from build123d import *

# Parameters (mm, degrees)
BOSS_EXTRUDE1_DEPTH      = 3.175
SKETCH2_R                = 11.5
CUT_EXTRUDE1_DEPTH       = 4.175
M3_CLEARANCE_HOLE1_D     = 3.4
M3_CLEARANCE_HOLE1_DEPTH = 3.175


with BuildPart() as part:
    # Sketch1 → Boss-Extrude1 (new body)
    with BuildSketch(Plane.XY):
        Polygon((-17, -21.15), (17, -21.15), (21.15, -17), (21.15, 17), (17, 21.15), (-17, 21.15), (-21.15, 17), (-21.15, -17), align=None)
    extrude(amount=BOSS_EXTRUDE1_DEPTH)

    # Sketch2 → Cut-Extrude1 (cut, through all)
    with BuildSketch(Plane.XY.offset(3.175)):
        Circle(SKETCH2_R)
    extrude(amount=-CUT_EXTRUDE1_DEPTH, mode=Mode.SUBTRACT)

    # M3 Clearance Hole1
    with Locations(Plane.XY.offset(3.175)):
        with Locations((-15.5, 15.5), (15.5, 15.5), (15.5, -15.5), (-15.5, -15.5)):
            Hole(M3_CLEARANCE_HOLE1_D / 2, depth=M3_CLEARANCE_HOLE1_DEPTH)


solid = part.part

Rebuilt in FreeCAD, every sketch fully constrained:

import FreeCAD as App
import Part
import Sketcher
Q = App.Units.Quantity

doc = App.newDocument("Part")
params = doc.addObject("Spreadsheet::Sheet", "Params")
for row, (alias, value) in enumerate([
    ("sketch1_width", "34 mm"),
    ("pad1_length", "3.175 mm"),
    ("sketch2_diameter", "23 mm"),
    ("sketch3_diameter", "3.4 mm"),
    ("hole_diameter", "3.4 mm"),
    ("hole_depth", "3.175 mm"),
], start=1):
    params.set(f"A{row}", alias)
    params.set(f"B{row}", "=" + value)
    params.setAlias(f"B{row}", alias)

body = doc.addObject("PartDesign::Body", "Body")

sketch1 = body.newObject("Sketcher::SketchObject", "Sketch")
sketch1.AttachmentSupport = (doc.getObject("XY_Plane"), [""])
sketch1.MapMode = "FlatFace"
sketch1.addGeometry([
    Part.LineSegment(App.Vector(-17, -21.15, 0), App.Vector(17, -21.15, 0)),
    Part.LineSegment(App.Vector(17, -21.15, 0), App.Vector(21.15, -17, 0)),
    Part.LineSegment(App.Vector(21.15, -17, 0), App.Vector(21.15, 17, 0)),
    Part.LineSegment(App.Vector(21.15, 17, 0), App.Vector(17, 21.15, 0)),
    Part.LineSegment(App.Vector(17, 21.15, 0), App.Vector(-17, 21.15, 0)),
    Part.LineSegment(App.Vector(-17, 21.15, 0), App.Vector(-21.15, 17, 0)),
    Part.LineSegment(App.Vector(-21.15, 17, 0), App.Vector(-21.15, -17, 0)),
    Part.LineSegment(App.Vector(-21.15, -17, 0), App.Vector(-17, -21.15, 0)),
], False)
sketch1.addConstraint([
    Sketcher.Constraint("Coincident", 0, 2, 1, 1),
    Sketcher.Constraint("Coincident", 1, 2, 2, 1),
    Sketcher.Constraint("Coincident", 2, 2, 3, 1),
    Sketcher.Constraint("Coincident", 3, 2, 4, 1),
    Sketcher.Constraint("Coincident", 4, 2, 5, 1),
    Sketcher.Constraint("Coincident", 5, 2, 6, 1),
    Sketcher.Constraint("Coincident", 6, 2, 7, 1),
    Sketcher.Constraint("Coincident", 7, 2, 0, 1),
    Sketcher.Constraint("Horizontal", 0),
    Sketcher.Constraint("Vertical", 2),
    Sketcher.Constraint("Horizontal", 4),
    Sketcher.Constraint("Vertical", 6),
    Sketcher.Constraint("Symmetric", 0, 2, 4, 2, -1, 1),
    Sketcher.Constraint("Symmetric", 1, 2, 5, 2, -1, 1),
    Sketcher.Constraint("Perpendicular", 1, 3),
    Sketcher.Constraint("Perpendicular", 5, 7),
    Sketcher.Constraint("Horizontal", 2, 2, 5, 2),
    Sketcher.Constraint("Horizontal", 1, 2, 6, 2),
    Sketcher.Constraint("Vertical", 0, 2, 3, 2),
    Sketcher.Constraint("Equal", 4, 2),
    Sketcher.Constraint("DistanceX", 0, 1, 0, 2, Q("34 mm")),
    Sketcher.Constraint("DistanceY", 0, 2, 3, 2, Q("42.3 mm")),
])
sketch1.setExpression("Constraints[20]", "Params.sketch1_width")
pad1 = body.newObject("PartDesign::Pad", "Pad")
pad1.Profile = sketch1
pad1.setExpression("Length", "Params.pad1_length")

sketch2 = body.newObject("Sketcher::SketchObject", "Sketch001")
sketch2.AttachmentSupport = (doc.getObject("XY_Plane"), [""])
sketch2.MapMode = "FlatFace"
sketch2.AttachmentOffset = App.Placement(App.Vector(0, 0, 3.175), App.Rotation())
sketch2.addGeometry(Part.Circle(App.Vector(0, 0, 0), App.Vector(0, 0, 1), 11.5), False)
sketch2.addConstraint([
    Sketcher.Constraint("Coincident", 0, 3, -1, 1),
    Sketcher.Constraint("Diameter", 0, Q("23 mm")),
])
sketch2.setExpression("Constraints[1]", "Params.sketch2_diameter")
pocket1 = body.newObject("PartDesign::Pocket", "Pocket")
pocket1.Profile = sketch2
pocket1.Type = "ThroughAll"

sketch3 = body.newObject("Sketcher::SketchObject", "Sketch002")
sketch3.AttachmentSupport = (doc.getObject("XY_Plane"), [""])
sketch3.MapMode = "FlatFace"
sketch3.AttachmentOffset = App.Placement(App.Vector(0, 0, 3.175), App.Rotation())
sketch3.addGeometry([
    Part.Circle(App.Vector(-15.5, 15.5, 0), App.Vector(0, 0, 1), 1.7),
    Part.Circle(App.Vector(15.5, 15.5, 0), App.Vector(0, 0, 1), 1.7),
    Part.Circle(App.Vector(15.5, -15.5, 0), App.Vector(0, 0, 1), 1.7),
    Part.Circle(App.Vector(-15.5, -15.5, 0), App.Vector(0, 0, 1), 1.7),
], False)
sketch3.addConstraint([
    Sketcher.Constraint("Equal", 0, 1),
    Sketcher.Constraint("Equal", 1, 2),
    Sketcher.Constraint("Equal", 2, 3),
    Sketcher.Constraint("Symmetric", 0, 3, 2, 3, -1, 1),
    Sketcher.Constraint("Symmetric", 1, 3, 3, 3, -1, 1),
    Sketcher.Constraint("Symmetric", 0, 3, 1, 3, -2),
    Sketcher.Constraint("Diameter", 0, Q("3.4 mm")),
    Sketcher.Constraint("DistanceX", 0, 3, 1, 3, Q("31 mm")),
    Sketcher.Constraint("DistanceY", 2, 3, 1, 3, Q("31 mm")),
])
sketch3.setExpression("Constraints[6]", "Params.sketch3_diameter")
doc.recompute()
hole = body.newObject("PartDesign::Hole", "Hole")
hole.Profile = sketch3
hole.ThreadType = "None"
hole.setExpression("Diameter", "Params.hole_diameter")
hole.DepthType = "Dimension"
hole.setExpression("Depth", "Params.hole_depth")
hole.DrillPoint = "Flat"

doc.recompute()
